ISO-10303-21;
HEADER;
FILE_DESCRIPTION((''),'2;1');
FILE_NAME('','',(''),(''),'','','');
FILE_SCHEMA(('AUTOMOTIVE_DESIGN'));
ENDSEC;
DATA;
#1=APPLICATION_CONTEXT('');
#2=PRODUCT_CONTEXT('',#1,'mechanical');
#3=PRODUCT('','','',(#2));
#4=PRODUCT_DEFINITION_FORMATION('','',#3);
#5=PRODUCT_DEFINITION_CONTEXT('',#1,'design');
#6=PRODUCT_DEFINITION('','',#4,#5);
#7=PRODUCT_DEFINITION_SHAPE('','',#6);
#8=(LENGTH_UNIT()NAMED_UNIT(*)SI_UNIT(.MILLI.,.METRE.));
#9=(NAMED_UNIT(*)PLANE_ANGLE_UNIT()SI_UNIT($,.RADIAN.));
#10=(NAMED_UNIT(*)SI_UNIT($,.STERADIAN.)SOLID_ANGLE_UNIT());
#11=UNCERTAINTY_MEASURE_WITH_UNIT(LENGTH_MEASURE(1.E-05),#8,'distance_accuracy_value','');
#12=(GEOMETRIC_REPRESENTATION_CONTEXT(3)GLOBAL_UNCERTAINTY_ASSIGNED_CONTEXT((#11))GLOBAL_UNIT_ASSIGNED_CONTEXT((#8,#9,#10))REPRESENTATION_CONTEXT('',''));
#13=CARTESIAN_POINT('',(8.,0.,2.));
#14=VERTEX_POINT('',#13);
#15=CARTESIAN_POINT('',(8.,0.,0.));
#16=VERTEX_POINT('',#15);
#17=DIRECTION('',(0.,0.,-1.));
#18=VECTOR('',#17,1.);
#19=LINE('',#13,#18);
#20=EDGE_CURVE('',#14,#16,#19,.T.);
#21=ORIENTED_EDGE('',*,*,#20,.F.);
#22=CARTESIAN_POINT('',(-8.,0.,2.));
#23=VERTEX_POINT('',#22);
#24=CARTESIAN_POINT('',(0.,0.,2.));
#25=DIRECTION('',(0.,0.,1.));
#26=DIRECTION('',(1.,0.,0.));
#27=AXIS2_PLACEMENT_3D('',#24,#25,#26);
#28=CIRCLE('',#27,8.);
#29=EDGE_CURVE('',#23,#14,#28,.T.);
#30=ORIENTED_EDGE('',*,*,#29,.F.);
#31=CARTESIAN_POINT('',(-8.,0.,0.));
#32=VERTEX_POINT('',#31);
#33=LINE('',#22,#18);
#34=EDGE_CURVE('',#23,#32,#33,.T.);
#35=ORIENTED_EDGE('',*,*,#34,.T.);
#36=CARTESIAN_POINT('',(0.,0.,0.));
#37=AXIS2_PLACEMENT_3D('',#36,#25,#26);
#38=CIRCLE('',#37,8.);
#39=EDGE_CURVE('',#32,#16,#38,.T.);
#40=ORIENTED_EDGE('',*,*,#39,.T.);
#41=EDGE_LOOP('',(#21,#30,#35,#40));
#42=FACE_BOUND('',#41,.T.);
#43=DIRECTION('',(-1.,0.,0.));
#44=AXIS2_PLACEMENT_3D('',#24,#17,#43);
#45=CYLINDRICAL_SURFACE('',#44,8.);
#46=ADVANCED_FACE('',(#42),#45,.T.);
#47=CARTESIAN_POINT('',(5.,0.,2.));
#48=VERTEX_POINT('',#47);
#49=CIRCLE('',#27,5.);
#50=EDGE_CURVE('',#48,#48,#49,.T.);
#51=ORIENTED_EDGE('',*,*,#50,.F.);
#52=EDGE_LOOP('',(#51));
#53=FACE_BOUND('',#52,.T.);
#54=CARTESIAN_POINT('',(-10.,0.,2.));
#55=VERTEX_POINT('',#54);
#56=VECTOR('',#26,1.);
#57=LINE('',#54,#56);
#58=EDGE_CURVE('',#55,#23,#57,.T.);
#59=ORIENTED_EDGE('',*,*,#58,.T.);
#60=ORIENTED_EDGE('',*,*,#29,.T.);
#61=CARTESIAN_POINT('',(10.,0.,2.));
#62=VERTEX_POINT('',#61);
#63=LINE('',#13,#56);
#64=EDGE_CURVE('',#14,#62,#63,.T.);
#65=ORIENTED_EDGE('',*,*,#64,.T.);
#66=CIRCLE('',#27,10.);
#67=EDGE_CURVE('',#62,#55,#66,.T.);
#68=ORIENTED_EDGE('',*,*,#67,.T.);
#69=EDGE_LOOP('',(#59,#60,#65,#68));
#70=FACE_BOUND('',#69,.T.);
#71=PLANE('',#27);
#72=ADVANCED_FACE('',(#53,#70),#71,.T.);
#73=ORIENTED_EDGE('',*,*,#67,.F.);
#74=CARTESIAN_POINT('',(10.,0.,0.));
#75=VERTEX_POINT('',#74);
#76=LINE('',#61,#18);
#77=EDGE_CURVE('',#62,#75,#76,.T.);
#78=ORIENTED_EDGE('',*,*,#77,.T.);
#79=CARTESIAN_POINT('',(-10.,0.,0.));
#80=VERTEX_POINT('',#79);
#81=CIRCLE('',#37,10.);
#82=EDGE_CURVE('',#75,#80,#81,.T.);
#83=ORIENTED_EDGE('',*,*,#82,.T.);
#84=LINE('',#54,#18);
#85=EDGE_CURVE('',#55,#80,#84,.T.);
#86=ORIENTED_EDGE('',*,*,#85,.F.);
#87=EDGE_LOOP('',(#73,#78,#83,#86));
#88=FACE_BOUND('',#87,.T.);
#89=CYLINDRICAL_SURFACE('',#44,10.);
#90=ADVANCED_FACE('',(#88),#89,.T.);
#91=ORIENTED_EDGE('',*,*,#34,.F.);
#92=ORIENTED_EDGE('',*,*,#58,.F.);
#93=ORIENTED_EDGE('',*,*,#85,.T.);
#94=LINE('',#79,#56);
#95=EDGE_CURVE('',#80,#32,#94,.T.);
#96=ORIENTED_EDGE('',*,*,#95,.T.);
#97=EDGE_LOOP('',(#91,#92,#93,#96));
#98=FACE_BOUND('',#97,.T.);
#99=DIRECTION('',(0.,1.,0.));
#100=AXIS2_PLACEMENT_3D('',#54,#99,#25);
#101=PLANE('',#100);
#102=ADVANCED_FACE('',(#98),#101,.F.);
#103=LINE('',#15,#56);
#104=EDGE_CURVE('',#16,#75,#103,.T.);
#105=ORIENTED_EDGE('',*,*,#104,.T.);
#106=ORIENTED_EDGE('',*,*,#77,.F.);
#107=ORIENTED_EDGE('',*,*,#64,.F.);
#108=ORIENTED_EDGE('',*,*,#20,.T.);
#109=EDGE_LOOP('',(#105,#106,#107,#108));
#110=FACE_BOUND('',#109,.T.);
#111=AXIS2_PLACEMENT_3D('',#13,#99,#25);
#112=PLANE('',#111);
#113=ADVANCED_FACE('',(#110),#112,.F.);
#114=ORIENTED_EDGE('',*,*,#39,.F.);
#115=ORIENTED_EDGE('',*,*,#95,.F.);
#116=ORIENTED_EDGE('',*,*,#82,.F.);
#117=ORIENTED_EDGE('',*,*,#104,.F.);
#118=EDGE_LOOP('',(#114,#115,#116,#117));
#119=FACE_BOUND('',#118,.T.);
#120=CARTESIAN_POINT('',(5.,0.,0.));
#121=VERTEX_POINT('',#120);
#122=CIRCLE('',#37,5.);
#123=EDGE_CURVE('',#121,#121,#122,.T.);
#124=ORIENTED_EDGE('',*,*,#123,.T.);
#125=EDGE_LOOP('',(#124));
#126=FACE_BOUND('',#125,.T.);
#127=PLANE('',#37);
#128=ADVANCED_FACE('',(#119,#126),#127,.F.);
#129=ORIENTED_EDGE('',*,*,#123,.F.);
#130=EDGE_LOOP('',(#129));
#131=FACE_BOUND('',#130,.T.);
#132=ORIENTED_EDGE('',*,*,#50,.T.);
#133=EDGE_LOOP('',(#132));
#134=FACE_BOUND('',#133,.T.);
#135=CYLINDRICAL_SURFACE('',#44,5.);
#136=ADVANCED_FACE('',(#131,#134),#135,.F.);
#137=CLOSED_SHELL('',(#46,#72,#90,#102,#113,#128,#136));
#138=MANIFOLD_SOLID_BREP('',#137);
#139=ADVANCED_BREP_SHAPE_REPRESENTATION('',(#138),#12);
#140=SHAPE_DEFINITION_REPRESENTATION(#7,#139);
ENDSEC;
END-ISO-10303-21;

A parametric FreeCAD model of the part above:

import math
import FreeCAD as App
import Part
import Sketcher

V = App.Vector
Q = App.Units.Quantity

doc = App.newDocument("Part")
body = doc.addObject("PartDesign::Body", "Body")

sketch1 = doc.addObject("Sketcher::SketchObject", "Sketch")
body.addObject(sketch1)
sketch1.AttachmentSupport = (doc.XY_Plane, [""])
sketch1.MapMode = "FlatFace"
sketch1.addGeometry([
    Part.LineSegment(V(-10, 0, 0), V(-8, 0, 0)),
    Part.ArcOfCircle(Part.Circle(V(0, 0, 0), V(0, 0, 1), 8), math.radians(180), math.radians(360)),
    Part.LineSegment(V(8, 0, 0), V(10, 0, 0)),
    Part.ArcOfCircle(Part.Circle(V(0, 0, 0), V(0, 0, 1), 10), math.radians(0), math.radians(180)),
    Part.Circle(V(0, 0, 0), V(0, 0, 1), 5),
], False)
sketch1.addConstraint([
    Sketcher.Constraint("Coincident", 0, 2, 1, 1),
    Sketcher.Constraint("Coincident", 1, 2, 2, 1),
    Sketcher.Constraint("Coincident", 2, 2, 3, 1),
    Sketcher.Constraint("Coincident", 3, 2, 0, 1),
    Sketcher.Constraint("Horizontal", 0),
    Sketcher.Constraint("Horizontal", 2),
    Sketcher.Constraint("Coincident", 1, 3, -1, 1),
    Sketcher.Constraint("Coincident", 3, 3, -1, 1),
    Sketcher.Constraint("Coincident", 4, 3, -1, 1),
    Sketcher.Constraint("PointOnObject", 0, 2, -1),
    Sketcher.Constraint("PointOnObject", 1, 2, -1),
    Sketcher.Constraint("Diameter", 4, Q("10 mm")),
    Sketcher.Constraint("Radius", 1, Q("8 mm")),
    Sketcher.Constraint("Radius", 3, Q("10 mm")),
])
pad1 = doc.addObject("PartDesign::Pad", "Pad")
body.addObject(pad1)
pad1.Profile = sketch1
pad1.Length = 2

doc.recompute()
